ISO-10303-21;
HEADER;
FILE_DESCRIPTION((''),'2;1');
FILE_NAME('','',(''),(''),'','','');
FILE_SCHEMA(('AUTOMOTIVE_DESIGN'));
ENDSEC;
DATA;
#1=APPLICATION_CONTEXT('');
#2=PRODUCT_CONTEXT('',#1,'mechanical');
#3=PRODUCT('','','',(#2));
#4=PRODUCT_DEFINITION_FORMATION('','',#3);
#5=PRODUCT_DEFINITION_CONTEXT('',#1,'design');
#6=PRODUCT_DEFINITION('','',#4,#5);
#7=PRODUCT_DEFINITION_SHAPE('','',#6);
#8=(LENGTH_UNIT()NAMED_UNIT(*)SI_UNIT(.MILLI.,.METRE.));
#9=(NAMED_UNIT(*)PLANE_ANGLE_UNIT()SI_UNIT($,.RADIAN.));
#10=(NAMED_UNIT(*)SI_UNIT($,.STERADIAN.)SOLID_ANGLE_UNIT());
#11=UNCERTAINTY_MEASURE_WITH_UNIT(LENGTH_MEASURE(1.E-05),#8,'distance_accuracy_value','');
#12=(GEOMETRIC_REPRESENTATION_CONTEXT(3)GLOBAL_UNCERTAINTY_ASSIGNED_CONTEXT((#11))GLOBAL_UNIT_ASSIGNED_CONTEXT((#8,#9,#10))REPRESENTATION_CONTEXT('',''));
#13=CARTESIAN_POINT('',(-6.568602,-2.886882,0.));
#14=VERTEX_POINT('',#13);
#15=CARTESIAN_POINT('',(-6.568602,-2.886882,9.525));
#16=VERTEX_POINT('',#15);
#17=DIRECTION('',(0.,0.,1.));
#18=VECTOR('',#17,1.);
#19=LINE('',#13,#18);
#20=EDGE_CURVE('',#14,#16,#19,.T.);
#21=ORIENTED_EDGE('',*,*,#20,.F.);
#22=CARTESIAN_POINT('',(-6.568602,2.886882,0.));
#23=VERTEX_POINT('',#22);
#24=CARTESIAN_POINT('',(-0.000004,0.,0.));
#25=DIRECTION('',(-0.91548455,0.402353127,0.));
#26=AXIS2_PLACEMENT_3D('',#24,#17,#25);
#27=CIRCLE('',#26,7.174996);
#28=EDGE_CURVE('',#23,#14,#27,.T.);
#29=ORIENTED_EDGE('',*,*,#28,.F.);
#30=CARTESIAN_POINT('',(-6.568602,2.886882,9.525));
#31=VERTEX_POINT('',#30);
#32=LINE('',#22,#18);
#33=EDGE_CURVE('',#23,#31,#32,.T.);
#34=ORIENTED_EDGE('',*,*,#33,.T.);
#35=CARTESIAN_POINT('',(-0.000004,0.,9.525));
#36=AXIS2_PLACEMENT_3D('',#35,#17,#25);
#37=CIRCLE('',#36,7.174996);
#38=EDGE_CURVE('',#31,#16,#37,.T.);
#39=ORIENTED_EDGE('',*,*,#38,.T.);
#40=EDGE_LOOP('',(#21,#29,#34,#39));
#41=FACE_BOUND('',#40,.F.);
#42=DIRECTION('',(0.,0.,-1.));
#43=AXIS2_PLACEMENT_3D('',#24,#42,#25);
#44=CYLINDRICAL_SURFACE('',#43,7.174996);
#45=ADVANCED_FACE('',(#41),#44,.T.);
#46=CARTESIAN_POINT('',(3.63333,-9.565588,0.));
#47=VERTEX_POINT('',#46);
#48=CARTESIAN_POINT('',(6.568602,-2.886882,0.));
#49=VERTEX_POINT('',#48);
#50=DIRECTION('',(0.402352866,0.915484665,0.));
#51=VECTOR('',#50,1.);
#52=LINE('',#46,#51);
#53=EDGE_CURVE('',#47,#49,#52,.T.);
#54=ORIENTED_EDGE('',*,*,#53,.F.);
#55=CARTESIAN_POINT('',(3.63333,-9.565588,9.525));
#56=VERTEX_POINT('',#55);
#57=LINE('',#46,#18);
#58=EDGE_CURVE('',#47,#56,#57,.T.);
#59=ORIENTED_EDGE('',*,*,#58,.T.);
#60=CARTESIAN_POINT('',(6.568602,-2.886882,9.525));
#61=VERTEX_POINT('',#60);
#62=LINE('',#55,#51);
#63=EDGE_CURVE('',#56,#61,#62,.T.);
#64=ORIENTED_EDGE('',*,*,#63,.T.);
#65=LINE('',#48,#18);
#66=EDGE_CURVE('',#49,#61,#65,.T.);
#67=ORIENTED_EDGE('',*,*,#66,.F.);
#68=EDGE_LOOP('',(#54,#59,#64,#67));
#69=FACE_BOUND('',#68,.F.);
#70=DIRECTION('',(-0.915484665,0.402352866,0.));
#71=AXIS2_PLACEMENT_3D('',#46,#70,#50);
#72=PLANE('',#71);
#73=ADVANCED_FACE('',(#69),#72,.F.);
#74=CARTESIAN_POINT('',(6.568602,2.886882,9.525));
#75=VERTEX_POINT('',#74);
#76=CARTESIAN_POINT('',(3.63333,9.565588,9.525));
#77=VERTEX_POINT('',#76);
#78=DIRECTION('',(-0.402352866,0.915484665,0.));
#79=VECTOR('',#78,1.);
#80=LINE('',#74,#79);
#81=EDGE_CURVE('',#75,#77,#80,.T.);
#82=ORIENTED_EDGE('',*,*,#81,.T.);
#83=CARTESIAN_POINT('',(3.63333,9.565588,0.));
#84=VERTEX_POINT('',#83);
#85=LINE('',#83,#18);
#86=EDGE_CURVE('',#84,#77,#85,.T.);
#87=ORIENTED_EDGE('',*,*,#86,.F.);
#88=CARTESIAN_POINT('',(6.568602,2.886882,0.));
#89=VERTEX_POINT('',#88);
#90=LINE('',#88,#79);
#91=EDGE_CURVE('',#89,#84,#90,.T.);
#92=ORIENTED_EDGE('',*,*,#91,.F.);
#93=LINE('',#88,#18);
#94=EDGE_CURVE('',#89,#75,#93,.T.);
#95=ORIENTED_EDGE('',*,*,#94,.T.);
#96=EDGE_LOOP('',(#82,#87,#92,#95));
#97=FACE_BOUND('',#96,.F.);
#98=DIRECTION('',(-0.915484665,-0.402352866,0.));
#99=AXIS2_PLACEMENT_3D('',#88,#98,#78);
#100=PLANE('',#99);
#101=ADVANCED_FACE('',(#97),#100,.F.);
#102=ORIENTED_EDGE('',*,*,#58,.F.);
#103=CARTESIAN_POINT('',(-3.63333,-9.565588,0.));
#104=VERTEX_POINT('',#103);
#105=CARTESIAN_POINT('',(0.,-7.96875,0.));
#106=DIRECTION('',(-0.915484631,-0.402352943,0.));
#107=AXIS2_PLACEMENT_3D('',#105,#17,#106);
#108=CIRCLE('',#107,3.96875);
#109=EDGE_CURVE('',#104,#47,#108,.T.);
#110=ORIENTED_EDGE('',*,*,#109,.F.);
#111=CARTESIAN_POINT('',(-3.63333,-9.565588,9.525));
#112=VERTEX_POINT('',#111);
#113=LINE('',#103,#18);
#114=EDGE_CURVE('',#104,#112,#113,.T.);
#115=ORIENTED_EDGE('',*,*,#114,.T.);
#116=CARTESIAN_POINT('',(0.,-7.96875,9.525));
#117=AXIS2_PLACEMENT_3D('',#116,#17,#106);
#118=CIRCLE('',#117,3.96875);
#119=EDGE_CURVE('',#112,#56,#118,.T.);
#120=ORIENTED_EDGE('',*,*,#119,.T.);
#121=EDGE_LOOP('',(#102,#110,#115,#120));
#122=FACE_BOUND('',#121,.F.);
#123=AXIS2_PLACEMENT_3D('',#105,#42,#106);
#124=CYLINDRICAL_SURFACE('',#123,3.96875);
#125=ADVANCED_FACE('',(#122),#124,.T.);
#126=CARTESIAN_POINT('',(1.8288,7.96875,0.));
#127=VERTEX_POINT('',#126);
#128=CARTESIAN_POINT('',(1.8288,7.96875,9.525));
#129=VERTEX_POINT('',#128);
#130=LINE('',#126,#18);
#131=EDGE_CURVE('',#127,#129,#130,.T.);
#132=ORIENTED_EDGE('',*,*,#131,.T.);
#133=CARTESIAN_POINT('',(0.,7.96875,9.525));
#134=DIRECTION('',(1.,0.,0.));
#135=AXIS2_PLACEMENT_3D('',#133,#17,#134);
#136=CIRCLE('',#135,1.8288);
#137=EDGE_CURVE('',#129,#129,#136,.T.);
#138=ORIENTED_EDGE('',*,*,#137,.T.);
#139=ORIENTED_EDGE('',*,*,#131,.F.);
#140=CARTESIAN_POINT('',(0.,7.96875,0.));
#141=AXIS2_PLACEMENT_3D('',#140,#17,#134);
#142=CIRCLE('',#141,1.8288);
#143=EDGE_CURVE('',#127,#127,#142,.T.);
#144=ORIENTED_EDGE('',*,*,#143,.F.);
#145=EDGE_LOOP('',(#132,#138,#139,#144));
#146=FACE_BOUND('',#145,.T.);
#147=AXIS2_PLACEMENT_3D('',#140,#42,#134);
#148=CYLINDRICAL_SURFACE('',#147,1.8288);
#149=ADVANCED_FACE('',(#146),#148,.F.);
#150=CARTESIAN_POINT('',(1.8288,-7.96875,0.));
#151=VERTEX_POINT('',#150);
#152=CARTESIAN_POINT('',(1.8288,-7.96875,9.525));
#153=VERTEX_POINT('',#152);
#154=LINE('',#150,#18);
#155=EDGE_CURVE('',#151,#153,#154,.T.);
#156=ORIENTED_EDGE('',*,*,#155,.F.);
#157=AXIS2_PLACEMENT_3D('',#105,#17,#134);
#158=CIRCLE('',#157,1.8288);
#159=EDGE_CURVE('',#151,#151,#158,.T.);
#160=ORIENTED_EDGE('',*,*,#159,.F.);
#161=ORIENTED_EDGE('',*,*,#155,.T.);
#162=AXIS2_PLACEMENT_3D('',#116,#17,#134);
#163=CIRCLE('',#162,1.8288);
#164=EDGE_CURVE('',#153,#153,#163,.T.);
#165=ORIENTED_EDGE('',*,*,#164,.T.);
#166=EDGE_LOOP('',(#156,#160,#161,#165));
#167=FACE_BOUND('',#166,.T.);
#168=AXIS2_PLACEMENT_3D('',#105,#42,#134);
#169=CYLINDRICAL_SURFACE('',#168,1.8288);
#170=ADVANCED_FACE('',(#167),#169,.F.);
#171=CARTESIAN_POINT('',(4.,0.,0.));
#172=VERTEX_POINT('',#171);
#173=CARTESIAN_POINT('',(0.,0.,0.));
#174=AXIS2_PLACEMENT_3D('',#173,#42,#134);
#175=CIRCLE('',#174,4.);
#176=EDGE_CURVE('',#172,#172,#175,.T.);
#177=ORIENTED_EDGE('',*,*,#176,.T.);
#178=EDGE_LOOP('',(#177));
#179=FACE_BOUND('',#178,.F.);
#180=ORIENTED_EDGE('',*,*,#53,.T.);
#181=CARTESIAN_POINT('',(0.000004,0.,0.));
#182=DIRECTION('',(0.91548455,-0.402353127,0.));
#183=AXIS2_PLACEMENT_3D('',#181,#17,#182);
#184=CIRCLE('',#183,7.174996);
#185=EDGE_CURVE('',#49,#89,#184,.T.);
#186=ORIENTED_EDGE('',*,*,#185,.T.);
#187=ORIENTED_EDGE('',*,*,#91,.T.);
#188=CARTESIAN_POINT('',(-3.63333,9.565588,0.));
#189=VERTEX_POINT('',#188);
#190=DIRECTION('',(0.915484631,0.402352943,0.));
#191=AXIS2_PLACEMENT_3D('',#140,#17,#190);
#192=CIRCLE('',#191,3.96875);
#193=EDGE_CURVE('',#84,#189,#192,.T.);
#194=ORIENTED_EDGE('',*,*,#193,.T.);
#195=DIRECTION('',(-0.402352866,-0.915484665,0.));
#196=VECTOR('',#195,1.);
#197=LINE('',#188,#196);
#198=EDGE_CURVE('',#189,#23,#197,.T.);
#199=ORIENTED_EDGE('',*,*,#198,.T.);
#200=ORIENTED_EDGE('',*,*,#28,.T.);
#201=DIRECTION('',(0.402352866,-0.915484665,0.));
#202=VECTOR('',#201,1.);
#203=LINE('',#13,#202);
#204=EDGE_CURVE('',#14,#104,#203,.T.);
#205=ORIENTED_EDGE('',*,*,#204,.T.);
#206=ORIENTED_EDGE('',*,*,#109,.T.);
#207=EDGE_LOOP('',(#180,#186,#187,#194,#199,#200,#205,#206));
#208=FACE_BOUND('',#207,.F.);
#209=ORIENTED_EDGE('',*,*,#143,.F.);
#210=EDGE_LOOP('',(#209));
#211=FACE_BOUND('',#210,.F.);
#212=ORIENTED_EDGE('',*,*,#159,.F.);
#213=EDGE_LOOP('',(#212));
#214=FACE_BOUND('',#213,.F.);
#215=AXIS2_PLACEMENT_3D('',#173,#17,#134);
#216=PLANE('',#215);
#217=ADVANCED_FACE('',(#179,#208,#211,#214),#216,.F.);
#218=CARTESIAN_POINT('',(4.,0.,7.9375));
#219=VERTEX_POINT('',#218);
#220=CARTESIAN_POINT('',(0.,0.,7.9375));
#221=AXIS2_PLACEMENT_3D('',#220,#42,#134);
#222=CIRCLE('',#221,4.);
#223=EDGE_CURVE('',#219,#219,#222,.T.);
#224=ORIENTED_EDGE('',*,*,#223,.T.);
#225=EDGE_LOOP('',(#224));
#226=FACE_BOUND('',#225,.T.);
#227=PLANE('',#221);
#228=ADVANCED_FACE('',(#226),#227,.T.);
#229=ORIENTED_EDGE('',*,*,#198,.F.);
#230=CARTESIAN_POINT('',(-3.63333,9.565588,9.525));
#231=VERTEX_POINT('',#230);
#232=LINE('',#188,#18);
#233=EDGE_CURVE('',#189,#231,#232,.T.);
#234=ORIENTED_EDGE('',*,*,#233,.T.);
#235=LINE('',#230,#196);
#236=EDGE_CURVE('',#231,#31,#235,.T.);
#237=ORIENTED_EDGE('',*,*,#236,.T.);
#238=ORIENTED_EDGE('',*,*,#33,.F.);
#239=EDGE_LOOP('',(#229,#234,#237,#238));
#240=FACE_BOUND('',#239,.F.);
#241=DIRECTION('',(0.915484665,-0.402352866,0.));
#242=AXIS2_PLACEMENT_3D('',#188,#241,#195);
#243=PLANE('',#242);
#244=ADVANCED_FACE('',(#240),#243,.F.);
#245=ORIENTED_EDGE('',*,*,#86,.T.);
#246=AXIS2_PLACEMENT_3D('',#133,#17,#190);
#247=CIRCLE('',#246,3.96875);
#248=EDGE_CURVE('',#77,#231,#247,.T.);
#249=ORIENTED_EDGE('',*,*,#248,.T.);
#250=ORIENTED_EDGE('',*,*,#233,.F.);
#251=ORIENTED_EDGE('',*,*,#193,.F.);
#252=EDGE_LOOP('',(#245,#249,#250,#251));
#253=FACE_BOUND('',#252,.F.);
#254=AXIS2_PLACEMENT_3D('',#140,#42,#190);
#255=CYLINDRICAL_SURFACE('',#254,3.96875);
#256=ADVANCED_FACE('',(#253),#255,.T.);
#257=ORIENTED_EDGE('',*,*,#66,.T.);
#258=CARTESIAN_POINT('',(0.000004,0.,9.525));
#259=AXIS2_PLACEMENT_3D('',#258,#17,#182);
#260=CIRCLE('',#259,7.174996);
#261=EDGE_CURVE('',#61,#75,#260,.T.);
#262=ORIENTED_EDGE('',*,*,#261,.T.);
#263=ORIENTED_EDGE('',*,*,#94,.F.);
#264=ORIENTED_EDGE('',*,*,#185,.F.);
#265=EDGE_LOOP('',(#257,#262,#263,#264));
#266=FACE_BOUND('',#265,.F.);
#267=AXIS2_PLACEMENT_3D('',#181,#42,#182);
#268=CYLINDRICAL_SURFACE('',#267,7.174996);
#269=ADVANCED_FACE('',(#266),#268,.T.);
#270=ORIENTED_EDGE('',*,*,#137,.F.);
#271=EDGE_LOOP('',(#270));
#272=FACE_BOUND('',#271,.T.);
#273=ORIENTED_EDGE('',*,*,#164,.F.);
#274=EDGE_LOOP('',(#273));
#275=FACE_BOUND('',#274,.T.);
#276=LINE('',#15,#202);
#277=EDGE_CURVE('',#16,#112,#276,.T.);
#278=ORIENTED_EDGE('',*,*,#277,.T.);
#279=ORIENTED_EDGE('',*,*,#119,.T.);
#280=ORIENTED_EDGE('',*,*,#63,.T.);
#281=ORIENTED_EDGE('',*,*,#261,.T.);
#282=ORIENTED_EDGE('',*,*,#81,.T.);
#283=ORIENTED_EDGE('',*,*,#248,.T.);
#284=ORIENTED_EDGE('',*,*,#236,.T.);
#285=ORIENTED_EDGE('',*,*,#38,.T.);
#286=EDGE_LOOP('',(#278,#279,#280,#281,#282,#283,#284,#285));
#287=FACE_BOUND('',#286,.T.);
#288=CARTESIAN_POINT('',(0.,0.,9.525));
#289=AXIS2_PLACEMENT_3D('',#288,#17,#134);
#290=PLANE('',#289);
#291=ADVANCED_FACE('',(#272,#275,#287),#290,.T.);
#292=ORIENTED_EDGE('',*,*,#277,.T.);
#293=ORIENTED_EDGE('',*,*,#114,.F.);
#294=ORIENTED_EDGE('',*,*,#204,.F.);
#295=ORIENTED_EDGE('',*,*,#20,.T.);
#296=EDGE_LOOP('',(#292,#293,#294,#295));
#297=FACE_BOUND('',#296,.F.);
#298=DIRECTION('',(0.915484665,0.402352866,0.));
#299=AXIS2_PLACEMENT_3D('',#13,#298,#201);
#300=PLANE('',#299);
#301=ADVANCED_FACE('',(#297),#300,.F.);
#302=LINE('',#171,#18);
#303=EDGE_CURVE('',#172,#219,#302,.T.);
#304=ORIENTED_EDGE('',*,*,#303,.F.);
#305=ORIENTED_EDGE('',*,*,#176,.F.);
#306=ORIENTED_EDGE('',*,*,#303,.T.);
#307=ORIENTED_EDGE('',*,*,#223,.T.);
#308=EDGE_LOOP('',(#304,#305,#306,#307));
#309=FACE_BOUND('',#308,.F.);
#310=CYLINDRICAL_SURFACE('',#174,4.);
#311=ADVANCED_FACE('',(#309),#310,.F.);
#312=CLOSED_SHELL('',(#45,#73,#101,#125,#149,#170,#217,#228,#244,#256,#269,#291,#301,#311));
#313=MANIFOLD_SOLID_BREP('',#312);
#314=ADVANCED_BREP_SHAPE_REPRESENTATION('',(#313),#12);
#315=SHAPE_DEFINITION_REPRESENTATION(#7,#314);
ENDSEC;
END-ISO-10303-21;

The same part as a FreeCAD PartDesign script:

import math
import FreeCAD as App
import Part
import Sketcher
from FreeCAD import Vector
Q = App.Units.Quantity

doc = App.newDocument("Part")
body = doc.addObject("PartDesign::Body", "Body")

# Sketch on XY plane
sketch1 = body.newObject("Sketcher::SketchObject", "Sketch")
sketch1.AttachmentSupport = (doc.getObject("XY_Plane"), [""])
sketch1.MapMode = "FlatFace"
sketch1.addGeometry([
    Part.LineSegment(Vector(6.6, 2.9, 0), Vector(3.6, 9.6, 0)),  # 0
    Part.ArcOfCircle(Part.Circle(Vector(0, 8, 0), Vector(0, 0, 1), 4), math.radians(24), math.radians(156)),  # 1
    Part.LineSegment(Vector(-3.6, 9.6, 0), Vector(-6.6, 2.9, 0)),  # 2
    Part.ArcOfCircle(Part.Circle(Vector(0, 0, 0), Vector(0, 0, 1), 7.2), math.radians(156), math.radians(204)),  # 3
    Part.LineSegment(Vector(-6.6, -2.9, 0), Vector(-3.6, -9.6, 0)),  # 4
    Part.ArcOfCircle(Part.Circle(Vector(0, -8, 0), Vector(0, 0, 1), 4), math.radians(-156), math.radians(-24)),  # 5
    Part.LineSegment(Vector(3.6, -9.6, 0), Vector(6.6, -2.9, 0)),  # 6
    Part.ArcOfCircle(Part.Circle(Vector(0, 0, 0), Vector(0, 0, 1), 7.2), math.radians(-24), math.radians(24)),  # 7
    Part.Circle(Vector(0, -8, 0), Vector(0, 0, 1), 1.8),  # 8
    Part.Circle(Vector(0, 8, 0), Vector(0, 0, 1), 1.8),  # 9
], False)
sketch1.addConstraint([
    Sketcher.Constraint("Tangent", 0, 2, 1, 1),
    Sketcher.Constraint("Tangent", 1, 2, 2, 1),
    Sketcher.Constraint("Tangent", 2, 2, 3, 1),
    Sketcher.Constraint("Tangent", 3, 2, 4, 1),
    Sketcher.Constraint("Tangent", 4, 2, 5, 1),
    Sketcher.Constraint("Tangent", 5, 2, 6, 1),
    Sketcher.Constraint("Tangent", 6, 2, 7, 1),
    Sketcher.Constraint("Tangent", 7, 2, 0, 1),
    Sketcher.Constraint("Coincident", 3, 3, -1, 1),
    Sketcher.Constraint("Coincident", 7, 3, -1, 1),
    Sketcher.Constraint("Coincident", 8, 3, 5, 3),
    Sketcher.Constraint("Coincident", 9, 3, 1, 3),
    Sketcher.Constraint("Equal", 1, 5),
    Sketcher.Constraint("Equal", 3, 7),
    Sketcher.Constraint("Equal", 8, 9),
    Sketcher.Constraint("Symmetric", 1, 3, 5, 3, -1, 1),
    Sketcher.Constraint("PointOnObject", 1, 3, -2),
    Sketcher.Constraint("Diameter", 8, Q("0.144 in")),
    Sketcher.Constraint("Radius", 1, Q("0.15625 in")),
    Sketcher.Constraint("Radius", 3, 7.174996),
    Sketcher.Constraint("DistanceX", 3, 2, -1, 1, 6.568602),
])
pad1 = body.newObject("PartDesign::Pad", "Pad")
pad1.Profile = sketch1
pad1.Length = Q("0.375 in")

# Sketch on XY plane
sketch2 = body.newObject("Sketcher::SketchObject", "Sketch001")
sketch2.AttachmentSupport = (doc.getObject("XY_Plane"), [""])
sketch2.MapMode = "FlatFace"
sketch2.addGeometry(Part.Circle(Vector(0, 0, 0), Vector(0, 0, 1), 4), False)
sketch2.addConstraint([
    Sketcher.Constraint("Coincident", 0, 3, -1, 1),
    Sketcher.Constraint("Diameter", 0, 8.0),
])
pocket1 = body.newObject("PartDesign::Pocket", "Pocket")
pocket1.Profile = sketch2
pocket1.Length = Q("0.3125 in")
pocket1.Reversed = True

doc.recompute()
